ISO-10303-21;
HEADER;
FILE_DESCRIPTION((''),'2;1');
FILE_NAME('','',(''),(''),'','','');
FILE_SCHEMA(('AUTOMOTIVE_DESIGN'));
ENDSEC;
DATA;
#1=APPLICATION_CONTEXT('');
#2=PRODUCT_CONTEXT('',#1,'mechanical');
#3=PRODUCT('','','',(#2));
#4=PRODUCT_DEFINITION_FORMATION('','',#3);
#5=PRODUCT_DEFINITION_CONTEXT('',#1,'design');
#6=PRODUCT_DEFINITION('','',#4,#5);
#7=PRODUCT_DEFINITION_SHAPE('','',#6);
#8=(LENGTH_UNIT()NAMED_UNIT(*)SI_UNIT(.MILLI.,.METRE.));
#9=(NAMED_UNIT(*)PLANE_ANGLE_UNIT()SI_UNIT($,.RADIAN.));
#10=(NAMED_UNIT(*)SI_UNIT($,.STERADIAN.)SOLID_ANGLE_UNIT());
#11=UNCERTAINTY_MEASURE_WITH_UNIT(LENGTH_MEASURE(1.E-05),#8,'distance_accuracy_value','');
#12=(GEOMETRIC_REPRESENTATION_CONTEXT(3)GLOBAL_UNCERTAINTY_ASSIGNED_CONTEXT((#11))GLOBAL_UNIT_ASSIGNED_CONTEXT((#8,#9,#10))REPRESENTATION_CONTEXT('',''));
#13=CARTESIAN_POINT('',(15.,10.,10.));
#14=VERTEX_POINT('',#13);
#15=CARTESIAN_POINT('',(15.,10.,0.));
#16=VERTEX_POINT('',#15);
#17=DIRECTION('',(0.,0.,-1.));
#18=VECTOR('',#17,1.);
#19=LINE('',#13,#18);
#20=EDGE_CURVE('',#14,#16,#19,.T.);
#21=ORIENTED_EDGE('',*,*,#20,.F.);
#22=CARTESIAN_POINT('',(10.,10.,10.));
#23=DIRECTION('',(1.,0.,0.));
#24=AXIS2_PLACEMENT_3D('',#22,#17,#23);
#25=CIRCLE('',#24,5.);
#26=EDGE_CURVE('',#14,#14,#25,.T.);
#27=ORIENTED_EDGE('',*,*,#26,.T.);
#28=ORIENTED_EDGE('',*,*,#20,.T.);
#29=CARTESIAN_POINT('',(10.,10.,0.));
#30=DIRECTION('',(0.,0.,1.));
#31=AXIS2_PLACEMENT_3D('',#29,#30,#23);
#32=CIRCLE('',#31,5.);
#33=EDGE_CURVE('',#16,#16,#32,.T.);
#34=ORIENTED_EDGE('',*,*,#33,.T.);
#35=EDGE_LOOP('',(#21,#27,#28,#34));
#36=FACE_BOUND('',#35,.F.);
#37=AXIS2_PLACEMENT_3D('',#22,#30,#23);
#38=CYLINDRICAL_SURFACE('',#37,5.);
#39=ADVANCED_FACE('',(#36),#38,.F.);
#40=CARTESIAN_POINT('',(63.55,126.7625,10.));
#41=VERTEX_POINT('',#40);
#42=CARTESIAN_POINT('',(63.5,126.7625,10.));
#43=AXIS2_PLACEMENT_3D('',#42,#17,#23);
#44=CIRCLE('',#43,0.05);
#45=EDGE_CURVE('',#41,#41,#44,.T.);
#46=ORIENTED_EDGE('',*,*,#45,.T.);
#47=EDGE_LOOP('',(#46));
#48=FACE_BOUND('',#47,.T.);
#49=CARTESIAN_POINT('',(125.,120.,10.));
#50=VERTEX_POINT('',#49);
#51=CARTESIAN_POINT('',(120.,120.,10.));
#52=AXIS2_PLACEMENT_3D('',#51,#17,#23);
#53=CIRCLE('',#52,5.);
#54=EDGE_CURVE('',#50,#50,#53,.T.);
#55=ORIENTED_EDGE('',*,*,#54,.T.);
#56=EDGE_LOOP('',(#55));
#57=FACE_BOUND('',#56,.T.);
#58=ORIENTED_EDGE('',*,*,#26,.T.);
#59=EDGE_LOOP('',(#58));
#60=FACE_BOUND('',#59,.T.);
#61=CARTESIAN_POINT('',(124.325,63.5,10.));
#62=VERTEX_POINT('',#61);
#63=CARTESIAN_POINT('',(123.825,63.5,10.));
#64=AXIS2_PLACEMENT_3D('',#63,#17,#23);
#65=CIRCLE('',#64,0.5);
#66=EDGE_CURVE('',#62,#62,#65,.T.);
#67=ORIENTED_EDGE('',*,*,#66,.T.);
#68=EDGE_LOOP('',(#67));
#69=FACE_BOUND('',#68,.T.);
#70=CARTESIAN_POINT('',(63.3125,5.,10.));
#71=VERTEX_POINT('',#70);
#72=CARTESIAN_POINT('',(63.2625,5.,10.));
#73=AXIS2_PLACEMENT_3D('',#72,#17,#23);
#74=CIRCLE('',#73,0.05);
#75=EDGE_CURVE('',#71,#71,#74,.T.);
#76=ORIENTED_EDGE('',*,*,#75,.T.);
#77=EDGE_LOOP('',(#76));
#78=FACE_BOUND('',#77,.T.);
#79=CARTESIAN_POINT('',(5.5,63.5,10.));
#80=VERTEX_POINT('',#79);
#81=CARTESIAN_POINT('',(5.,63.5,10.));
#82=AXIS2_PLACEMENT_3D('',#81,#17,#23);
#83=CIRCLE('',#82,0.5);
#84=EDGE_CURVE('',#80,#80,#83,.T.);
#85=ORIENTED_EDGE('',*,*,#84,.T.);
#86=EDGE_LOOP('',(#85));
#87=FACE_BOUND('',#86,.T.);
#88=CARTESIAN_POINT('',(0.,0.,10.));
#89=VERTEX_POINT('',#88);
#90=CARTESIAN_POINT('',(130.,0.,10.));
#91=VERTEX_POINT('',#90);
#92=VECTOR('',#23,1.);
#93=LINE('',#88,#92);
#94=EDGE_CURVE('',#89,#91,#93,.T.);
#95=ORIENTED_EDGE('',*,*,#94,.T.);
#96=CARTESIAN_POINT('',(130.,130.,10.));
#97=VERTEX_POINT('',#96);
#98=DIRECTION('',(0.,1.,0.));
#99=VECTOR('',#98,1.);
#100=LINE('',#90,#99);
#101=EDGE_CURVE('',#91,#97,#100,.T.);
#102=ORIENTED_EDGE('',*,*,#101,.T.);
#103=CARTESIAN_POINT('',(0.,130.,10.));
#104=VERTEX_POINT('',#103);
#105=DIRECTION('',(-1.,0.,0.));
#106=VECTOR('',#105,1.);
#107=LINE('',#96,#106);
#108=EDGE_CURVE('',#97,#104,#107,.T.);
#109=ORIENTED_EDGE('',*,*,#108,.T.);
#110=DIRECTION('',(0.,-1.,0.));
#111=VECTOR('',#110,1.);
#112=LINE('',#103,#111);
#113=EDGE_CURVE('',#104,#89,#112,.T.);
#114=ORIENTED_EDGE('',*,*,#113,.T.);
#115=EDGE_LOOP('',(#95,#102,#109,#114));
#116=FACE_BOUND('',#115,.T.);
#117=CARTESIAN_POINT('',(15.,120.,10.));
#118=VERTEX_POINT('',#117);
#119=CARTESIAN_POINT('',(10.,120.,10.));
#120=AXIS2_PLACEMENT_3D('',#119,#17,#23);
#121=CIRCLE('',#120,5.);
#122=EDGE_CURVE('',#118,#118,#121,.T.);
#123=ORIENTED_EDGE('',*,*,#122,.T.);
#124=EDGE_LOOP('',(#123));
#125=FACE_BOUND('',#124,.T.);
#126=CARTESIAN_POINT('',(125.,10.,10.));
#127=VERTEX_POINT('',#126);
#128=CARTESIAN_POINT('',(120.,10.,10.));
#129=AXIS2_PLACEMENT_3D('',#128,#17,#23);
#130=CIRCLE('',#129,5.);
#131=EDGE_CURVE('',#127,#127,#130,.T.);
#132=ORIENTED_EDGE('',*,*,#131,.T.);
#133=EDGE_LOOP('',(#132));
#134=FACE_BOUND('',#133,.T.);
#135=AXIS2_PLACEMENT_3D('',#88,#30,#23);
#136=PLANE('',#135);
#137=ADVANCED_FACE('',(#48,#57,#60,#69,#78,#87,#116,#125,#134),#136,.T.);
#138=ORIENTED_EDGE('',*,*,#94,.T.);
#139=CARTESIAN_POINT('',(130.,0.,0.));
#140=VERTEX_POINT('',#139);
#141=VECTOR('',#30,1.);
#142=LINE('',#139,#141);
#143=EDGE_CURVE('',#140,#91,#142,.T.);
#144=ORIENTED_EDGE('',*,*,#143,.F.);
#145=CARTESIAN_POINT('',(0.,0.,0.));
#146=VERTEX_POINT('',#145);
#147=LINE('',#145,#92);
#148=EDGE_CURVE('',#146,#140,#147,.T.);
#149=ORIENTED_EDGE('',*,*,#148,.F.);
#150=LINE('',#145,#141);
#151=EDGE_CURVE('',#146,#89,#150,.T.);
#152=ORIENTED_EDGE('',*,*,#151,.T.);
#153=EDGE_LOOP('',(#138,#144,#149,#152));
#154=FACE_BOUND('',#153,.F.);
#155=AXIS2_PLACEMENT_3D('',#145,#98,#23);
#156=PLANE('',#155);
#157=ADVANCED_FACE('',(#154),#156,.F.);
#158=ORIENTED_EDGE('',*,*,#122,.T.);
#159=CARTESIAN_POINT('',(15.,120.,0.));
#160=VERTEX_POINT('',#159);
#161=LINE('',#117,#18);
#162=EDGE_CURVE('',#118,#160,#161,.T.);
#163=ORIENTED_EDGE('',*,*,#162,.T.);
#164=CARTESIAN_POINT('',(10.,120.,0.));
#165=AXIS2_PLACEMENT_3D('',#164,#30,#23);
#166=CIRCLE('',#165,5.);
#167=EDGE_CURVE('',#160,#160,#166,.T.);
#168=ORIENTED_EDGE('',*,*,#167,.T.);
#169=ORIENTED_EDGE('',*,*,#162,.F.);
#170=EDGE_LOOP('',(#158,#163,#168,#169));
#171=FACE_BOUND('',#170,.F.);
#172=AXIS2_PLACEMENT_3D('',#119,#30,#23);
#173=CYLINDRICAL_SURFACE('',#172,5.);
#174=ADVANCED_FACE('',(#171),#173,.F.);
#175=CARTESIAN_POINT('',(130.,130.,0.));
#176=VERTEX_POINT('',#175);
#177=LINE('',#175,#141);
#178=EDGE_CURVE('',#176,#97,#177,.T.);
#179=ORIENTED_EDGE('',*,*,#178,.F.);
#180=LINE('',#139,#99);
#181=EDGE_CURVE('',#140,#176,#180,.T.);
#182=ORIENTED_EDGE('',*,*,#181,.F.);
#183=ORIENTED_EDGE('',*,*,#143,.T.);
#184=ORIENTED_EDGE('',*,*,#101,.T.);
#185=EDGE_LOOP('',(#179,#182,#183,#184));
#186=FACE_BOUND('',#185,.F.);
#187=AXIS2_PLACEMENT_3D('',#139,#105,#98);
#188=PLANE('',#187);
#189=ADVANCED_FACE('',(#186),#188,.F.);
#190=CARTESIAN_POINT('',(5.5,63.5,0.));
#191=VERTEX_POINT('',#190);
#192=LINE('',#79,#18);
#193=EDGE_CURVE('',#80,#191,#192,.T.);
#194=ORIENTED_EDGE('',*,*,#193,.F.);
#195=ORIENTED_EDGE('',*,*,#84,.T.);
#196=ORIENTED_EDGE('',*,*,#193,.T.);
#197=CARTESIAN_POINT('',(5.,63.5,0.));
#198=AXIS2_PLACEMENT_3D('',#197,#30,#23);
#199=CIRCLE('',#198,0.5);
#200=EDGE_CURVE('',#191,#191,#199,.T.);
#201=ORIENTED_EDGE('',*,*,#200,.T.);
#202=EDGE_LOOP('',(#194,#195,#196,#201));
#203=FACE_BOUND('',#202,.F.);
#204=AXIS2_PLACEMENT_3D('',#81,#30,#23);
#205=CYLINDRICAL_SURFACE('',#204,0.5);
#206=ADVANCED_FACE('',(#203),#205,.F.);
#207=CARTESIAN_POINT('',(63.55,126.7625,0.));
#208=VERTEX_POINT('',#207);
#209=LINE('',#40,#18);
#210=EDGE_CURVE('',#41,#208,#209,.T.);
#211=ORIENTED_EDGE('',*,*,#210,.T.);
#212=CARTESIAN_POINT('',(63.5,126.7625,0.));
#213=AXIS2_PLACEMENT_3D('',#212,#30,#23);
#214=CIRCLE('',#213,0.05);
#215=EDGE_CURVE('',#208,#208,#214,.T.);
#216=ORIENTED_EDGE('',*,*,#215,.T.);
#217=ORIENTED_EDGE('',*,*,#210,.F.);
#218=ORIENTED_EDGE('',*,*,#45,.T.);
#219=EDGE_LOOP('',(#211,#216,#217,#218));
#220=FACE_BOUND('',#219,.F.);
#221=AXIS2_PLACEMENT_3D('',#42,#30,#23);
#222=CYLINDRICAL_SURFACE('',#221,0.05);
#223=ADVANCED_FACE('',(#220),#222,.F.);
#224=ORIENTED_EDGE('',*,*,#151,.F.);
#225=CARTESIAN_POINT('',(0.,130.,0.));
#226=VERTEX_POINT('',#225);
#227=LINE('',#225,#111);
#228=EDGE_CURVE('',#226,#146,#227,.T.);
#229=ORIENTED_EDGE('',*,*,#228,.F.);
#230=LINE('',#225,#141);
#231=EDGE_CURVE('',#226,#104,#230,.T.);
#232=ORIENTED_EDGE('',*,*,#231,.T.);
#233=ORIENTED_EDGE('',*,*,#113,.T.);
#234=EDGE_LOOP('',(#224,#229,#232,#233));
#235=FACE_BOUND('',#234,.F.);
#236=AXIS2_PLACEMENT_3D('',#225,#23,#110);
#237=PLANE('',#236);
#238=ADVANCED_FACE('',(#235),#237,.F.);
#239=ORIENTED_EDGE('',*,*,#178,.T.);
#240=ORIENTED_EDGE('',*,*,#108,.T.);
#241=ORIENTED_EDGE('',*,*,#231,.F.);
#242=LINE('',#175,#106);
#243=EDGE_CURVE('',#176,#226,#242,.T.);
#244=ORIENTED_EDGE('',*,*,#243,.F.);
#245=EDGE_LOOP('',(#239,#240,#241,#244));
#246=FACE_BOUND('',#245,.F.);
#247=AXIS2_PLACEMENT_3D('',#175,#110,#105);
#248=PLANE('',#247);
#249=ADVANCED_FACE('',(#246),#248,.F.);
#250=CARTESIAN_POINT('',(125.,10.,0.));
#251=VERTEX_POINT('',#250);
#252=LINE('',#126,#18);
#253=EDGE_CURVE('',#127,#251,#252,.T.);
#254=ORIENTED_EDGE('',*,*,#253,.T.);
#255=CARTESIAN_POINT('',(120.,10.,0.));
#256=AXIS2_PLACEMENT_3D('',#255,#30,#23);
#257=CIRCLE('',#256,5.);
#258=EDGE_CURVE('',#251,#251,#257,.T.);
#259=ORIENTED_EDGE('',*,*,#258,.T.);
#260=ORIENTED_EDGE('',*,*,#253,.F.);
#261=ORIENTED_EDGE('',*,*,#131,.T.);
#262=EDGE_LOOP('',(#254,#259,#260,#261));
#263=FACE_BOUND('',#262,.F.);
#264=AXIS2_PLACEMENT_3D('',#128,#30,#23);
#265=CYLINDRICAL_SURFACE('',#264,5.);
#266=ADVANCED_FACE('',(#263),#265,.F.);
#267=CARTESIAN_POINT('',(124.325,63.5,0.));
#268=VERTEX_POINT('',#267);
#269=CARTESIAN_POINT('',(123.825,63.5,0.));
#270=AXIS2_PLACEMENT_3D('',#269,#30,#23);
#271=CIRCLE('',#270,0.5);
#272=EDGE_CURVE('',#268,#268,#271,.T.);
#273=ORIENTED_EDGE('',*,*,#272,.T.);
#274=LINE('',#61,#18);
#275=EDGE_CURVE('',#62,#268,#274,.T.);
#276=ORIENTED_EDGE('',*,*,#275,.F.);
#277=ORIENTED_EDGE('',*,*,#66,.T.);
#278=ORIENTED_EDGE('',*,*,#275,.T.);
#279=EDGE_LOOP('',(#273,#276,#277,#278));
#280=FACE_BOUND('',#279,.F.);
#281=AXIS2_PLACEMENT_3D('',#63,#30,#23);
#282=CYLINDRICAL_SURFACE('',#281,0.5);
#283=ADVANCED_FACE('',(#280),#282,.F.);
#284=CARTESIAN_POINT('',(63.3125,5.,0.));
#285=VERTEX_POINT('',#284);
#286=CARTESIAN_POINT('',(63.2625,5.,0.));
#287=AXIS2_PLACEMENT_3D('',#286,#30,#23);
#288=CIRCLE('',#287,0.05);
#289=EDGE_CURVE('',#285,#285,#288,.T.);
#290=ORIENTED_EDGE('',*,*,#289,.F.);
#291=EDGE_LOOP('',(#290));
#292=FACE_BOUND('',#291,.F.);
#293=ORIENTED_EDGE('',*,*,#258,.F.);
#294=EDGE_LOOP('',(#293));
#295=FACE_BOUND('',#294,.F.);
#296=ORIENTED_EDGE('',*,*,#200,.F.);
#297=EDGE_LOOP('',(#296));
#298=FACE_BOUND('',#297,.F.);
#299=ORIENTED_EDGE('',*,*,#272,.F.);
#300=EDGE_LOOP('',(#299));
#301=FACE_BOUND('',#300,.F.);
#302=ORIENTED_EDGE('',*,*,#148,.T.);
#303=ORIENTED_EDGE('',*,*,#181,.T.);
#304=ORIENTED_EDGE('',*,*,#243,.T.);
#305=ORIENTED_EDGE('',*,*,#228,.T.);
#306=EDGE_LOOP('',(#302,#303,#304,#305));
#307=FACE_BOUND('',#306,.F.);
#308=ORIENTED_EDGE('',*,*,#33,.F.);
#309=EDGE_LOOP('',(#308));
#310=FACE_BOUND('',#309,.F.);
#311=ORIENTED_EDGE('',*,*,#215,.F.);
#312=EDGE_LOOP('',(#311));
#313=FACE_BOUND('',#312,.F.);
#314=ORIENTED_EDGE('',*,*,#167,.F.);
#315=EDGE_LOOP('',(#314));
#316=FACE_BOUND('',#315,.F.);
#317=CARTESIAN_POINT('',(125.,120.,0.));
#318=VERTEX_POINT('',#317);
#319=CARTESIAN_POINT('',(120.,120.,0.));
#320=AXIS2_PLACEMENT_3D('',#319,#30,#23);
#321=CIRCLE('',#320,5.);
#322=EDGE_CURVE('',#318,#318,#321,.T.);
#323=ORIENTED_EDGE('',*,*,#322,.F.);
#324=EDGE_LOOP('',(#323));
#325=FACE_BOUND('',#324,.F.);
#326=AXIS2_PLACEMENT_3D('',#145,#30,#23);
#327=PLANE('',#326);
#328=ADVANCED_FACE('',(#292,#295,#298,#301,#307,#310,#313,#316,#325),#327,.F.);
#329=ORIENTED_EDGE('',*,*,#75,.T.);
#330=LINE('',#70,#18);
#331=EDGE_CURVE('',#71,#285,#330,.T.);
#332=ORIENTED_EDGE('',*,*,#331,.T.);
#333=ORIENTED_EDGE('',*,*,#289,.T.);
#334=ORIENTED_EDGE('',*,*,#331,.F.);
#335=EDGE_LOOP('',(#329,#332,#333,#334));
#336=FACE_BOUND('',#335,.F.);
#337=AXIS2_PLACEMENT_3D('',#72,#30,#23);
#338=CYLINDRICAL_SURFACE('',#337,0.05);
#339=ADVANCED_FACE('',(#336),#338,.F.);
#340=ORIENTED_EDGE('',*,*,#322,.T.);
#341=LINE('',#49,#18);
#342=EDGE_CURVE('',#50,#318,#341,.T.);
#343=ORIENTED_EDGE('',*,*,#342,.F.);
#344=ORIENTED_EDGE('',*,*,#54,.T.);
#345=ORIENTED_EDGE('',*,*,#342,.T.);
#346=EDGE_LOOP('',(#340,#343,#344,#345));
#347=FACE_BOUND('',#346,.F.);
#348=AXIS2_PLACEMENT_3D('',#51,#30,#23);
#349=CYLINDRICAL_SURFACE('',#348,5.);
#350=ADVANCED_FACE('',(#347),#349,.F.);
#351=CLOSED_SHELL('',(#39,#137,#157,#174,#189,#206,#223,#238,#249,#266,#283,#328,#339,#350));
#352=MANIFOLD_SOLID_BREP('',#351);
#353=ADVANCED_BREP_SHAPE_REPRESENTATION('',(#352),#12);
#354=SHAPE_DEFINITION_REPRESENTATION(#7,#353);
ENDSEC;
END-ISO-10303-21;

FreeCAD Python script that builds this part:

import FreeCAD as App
import Part
import Sketcher
Q = App.Units.Quantity

doc = App.newDocument("Part")
body = doc.addObject("PartDesign::Body", "Body")

sketch1 = body.newObject("Sketcher::SketchObject", "Sketch")
sketch1.AttachmentSupport = (doc.getObject("XY_Plane"), [""])
sketch1.MapMode = "FlatFace"
sketch1.addGeometry(Part.LineSegment(App.Vector(0, 130, 0), App.Vector(0, 0, 0)), False)
sketch1.addGeometry(Part.LineSegment(App.Vector(0, 0, 0), App.Vector(130, 0, 0)), False)
sketch1.addGeometry(Part.LineSegment(App.Vector(130, 0, 0), App.Vector(130, 130, 0)), False)
sketch1.addGeometry(Part.LineSegment(App.Vector(130, 130, 0), App.Vector(0, 130, 0)), False)
sketch1.addConstraint(Sketcher.Constraint("Coincident", 0, 2, 1, 1))
sketch1.addConstraint(Sketcher.Constraint("Coincident", 1, 2, 2, 1))
sketch1.addConstraint(Sketcher.Constraint("Coincident", 2, 2, 3, 1))
sketch1.addConstraint(Sketcher.Constraint("Coincident", 3, 2, 0, 1))
sketch1.addConstraint(Sketcher.Constraint("Vertical", 0))
sketch1.addConstraint(Sketcher.Constraint("Horizontal", 1))
sketch1.addConstraint(Sketcher.Constraint("Vertical", 2))
sketch1.addConstraint(Sketcher.Constraint("Horizontal", 3))
sketch1.addConstraint(Sketcher.Constraint("Coincident", 0, 2, -1, 1))
sketch1.addConstraint(Sketcher.Constraint("Equal", 3, 0))
sketch1.addConstraint(Sketcher.Constraint("DistanceX", 1, 1, 1, 2, Q("130 mm")))
pad1 = body.newObject("PartDesign::Pad", "Pad")
pad1.Profile = sketch1
pad1.Length = 10

sketch2 = body.newObject("Sketcher::SketchObject", "Sketch001")
sketch2.AttachmentSupport = (doc.getObject("XY_Plane"), [""])
sketch2.MapMode = "FlatFace"
sketch2.AttachmentOffset = App.Placement(App.Vector(0, 0, 10), App.Rotation())
sketch2.addGeometry(Part.Circle(App.Vector(10, 10, 0), App.Vector(0, 0, 1), 5), False)
sketch2.addGeometry(Part.Circle(App.Vector(120, 10, 0), App.Vector(0, 0, 1), 5), False)
sketch2.addGeometry(Part.Circle(App.Vector(10, 120, 0), App.Vector(0, 0, 1), 5), False)
sketch2.addGeometry(Part.Circle(App.Vector(120, 120, 0), App.Vector(0, 0, 1), 5), False)
sketch2.addConstraint(Sketcher.Constraint("Equal", 0, 1))
sketch2.addConstraint(Sketcher.Constraint("Equal", 1, 2))
sketch2.addConstraint(Sketcher.Constraint("Equal", 2, 3))
sketch2.addConstraint(Sketcher.Constraint("Horizontal", 0, 3, 1, 3))
sketch2.addConstraint(Sketcher.Constraint("Horizontal", 2, 3, 3, 3))
sketch2.addConstraint(Sketcher.Constraint("Vertical", 0, 3, 2, 3))
sketch2.addConstraint(Sketcher.Constraint("Vertical", 1, 3, 3, 3))
sketch2.addConstraint(Sketcher.Constraint("Diameter", 0, Q("10 mm")))
sketch2.addConstraint(Sketcher.Constraint("DistanceX", -1, 1, 0, 3, Q("10 mm")))
sketch2.addConstraint(Sketcher.Constraint("DistanceY", -1, 1, 0, 3, Q("10 mm")))
sketch2.addConstraint(Sketcher.Constraint("DistanceX", 0, 3, 1, 3, Q("110 mm")))
sketch2.addConstraint(Sketcher.Constraint("DistanceY", 0, 3, 2, 3, Q("110 mm")))
pocket1 = body.newObject("PartDesign::Pocket", "Pocket")
pocket1.Profile = sketch2
pocket1.Type = "ThroughAll"

sketch3 = body.newObject("Sketcher::SketchObject", "Sketch002")
sketch3.AttachmentSupport = (doc.getObject("XY_Plane"), [""])
sketch3.MapMode = "FlatFace"
sketch3.AttachmentOffset = App.Placement(App.Vector(0, 0, 10), App.Rotation())
sketch3.addGeometry(Part.Circle(App.Vector(63.2625, 5, 0), App.Vector(0, 0, 1), 0.05), False)
sketch3.addConstraint(Sketcher.Constraint("Diameter", 0, Q("0.1 mm")))
sketch3.addConstraint(Sketcher.Constraint("DistanceY", -1, 1, 0, 3, Q("5 mm")))
sketch3.addConstraint(Sketcher.Constraint("DistanceX", -1, 1, 0, 3, Q("63.2625 mm")))
pocket2 = body.newObject("PartDesign::Pocket", "Pocket001")
pocket2.Profile = sketch3
pocket2.Type = "ThroughAll"
pocket2.Midplane = True

sketch4 = body.newObject("Sketcher::SketchObject", "Sketch003")
sketch4.AttachmentSupport = (doc.getObject("XY_Plane"), [""])
sketch4.MapMode = "FlatFace"
sketch4.AttachmentOffset = App.Placement(App.Vector(0, 0, 10), App.Rotation())
sketch4.addGeometry(Part.Circle(App.Vector(63.5, 126.7625, 0), App.Vector(0, 0, 1), 0.05), False)
sketch4.addConstraint(Sketcher.Constraint("Diameter", 0, Q("0.1 mm")))
sketch4.addConstraint(Sketcher.Constraint("DistanceX", -1, 1, 0, 3, Q("63.5 mm")))
sketch4.addConstraint(Sketcher.Constraint("DistanceY", -1, 1, 0, 3, Q("126.7625 mm")))
pocket3 = body.newObject("PartDesign::Pocket", "Pocket002")
pocket3.Profile = sketch4
pocket3.Length = 10

sketch5 = body.newObject("Sketcher::SketchObject", "Sketch004")
sketch5.AttachmentSupport = (doc.getObject("XY_Plane"), [""])
sketch5.MapMode = "FlatFace"
sketch5.AttachmentOffset = App.Placement(App.Vector(0, 0, 10), App.Rotation())
sketch5.addGeometry(Part.Circle(App.Vector(5, 63.5, 0), App.Vector(0, 0, 1), 0.5), False)
sketch5.addGeometry(Part.Circle(App.Vector(123.825, 63.5, 0), App.Vector(0, 0, 1), 0.5), False)
sketch5.addConstraint(Sketcher.Constraint("Equal", 0, 1))
sketch5.addConstraint(Sketcher.Constraint("Horizontal", 0, 3, 1, 3))
sketch5.addConstraint(Sketcher.Constraint("Diameter", 0, Q("1 mm")))
sketch5.addConstraint(Sketcher.Constraint("DistanceX", -1, 1, 0, 3, Q("5 mm")))
sketch5.addConstraint(Sketcher.Constraint("DistanceY", -1, 1, 0, 3, Q("63.5 mm")))
sketch5.addConstraint(Sketcher.Constraint("DistanceX", -1, 1, 1, 3, Q("123.825 mm")))
pocket4 = body.newObject("PartDesign::Pocket", "Pocket003")
pocket4.Profile = sketch5
pocket4.Type = "ThroughAll"

doc.recompute()
